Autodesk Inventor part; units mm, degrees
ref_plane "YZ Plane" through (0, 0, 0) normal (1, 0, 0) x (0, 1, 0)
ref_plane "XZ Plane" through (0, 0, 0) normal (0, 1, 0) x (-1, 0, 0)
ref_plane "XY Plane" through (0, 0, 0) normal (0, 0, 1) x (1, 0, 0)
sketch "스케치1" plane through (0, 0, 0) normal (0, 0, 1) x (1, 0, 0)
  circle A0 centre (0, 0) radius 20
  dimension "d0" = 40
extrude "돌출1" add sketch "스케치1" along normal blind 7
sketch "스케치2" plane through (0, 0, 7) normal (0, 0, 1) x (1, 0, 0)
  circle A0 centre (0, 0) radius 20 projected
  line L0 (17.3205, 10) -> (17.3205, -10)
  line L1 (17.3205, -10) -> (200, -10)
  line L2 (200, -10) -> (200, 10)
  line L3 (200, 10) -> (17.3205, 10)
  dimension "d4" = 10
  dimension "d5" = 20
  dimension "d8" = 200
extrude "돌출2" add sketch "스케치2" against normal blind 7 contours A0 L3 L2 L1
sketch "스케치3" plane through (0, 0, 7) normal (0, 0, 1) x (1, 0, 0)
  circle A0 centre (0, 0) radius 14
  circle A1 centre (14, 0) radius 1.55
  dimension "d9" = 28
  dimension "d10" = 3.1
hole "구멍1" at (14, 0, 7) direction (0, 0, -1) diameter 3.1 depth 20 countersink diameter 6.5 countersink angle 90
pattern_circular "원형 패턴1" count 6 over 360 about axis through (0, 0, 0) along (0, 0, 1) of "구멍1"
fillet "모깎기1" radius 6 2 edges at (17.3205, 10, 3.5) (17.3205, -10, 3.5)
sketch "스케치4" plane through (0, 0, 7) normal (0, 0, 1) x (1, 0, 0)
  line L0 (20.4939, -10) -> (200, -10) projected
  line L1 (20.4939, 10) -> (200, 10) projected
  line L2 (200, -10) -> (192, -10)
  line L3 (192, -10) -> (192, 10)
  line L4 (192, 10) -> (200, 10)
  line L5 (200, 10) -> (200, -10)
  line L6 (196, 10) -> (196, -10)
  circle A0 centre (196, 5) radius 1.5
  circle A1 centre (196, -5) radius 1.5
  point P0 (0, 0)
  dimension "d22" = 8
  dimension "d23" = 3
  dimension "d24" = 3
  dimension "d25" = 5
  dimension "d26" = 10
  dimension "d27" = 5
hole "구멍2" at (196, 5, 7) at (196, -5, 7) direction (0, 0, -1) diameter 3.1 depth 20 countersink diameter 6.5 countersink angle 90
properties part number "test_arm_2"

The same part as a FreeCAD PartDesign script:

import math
import FreeCAD as App
import Part
import Sketcher


def edges_at(feature, points):
    """Names of the edges that pass closest to the given points."""
    edges = feature.Shape.Edges
    near = lambda p: min(range(len(edges)), key=lambda i: edges[i].distToShape(Part.Vertex(*p))[0])
    return sorted({f"Edge{near(p) + 1}" for p in points})

doc = App.newDocument("Part")
body = doc.addObject("PartDesign::Body", "Body")

# Sketch on XY plane
sketch1 = body.newObject("Sketcher::SketchObject", "Sketch")
sketch1.AttachmentSupport = (doc.getObject("XY_Plane"), [""])
sketch1.MapMode = "FlatFace"
sketch1.addGeometry(Part.Circle(App.Vector(0, 0, 0), App.Vector(0, 0, 1), 20), False)
sketch1.addConstraint([
    Sketcher.Constraint("Coincident", 0, 3, -1, 1),
    Sketcher.Constraint("Diameter", 0, 40.0),
])
pad1 = body.newObject("PartDesign::Pad", "Pad")
pad1.Profile = sketch1
pad1.Length = 7

# Sketch on XY plane
sketch2 = body.newObject("Sketcher::SketchObject", "Sketch001")
sketch2.AttachmentSupport = (doc.getObject("XY_Plane"), [""])
sketch2.MapMode = "FlatFace"
sketch2.AttachmentOffset = App.Placement(App.Vector(0, 0, 7), App.Rotation())
sketch2.addGeometry([
    Part.ArcOfCircle(Part.Circle(App.Vector(0, 0, 0), App.Vector(0, 0, 1), 20), math.radians(-30), math.radians(30)),
    Part.LineSegment(App.Vector(17, -10, 0), App.Vector(200, -10, 0)),
    Part.LineSegment(App.Vector(200, -10, 0), App.Vector(200, 10, 0)),
    Part.LineSegment(App.Vector(200, 10, 0), App.Vector(17, 10, 0)),
], False)
sketch2.addConstraint([
    Sketcher.Constraint("Coincident", 0, 1, 1, 1),
    Sketcher.Constraint("Coincident", 1, 2, 2, 1),
    Sketcher.Constraint("Coincident", 2, 2, 3, 1),
    Sketcher.Constraint("Coincident", 3, 2, 0, 2),
    Sketcher.Constraint("Horizontal", 1),
    Sketcher.Constraint("Vertical", 2),
    Sketcher.Constraint("Horizontal", 3),
    Sketcher.Constraint("Coincident", 0, 3, -1, 1),
    Sketcher.Constraint("Vertical", 0, 1, 3, 2),
    Sketcher.Constraint("Radius", 0, 20.0),
    Sketcher.Constraint("DistanceY", 2, 1, 2, 2, 20.0),
    Sketcher.Constraint("DistanceX", -1, 1, 1, 2, 200.0),
])
pad2 = body.newObject("PartDesign::Pad", "Pad001")
pad2.Profile = sketch2
pad2.Length = 7
pad2.Reversed = True

# Sketch on XY plane
sketch3 = body.newObject("Sketcher::SketchObject", "Sketch002")
sketch3.AttachmentSupport = (doc.getObject("XY_Plane"), [""])
sketch3.MapMode = "FlatFace"
sketch3.AttachmentOffset = App.Placement(App.Vector(0, 0, 7), App.Rotation())
sketch3.addGeometry(Part.Circle(App.Vector(14, 0, 0), App.Vector(0, 0, 1), 1.6), False)
sketch3.addConstraint([
    Sketcher.Constraint("PointOnObject", 0, 3, -1),
    Sketcher.Constraint("Diameter", 0, 3.1),
    Sketcher.Constraint("DistanceX", -1, 1, 0, 3, 14.0),
])
doc.recompute()
hole = body.newObject("PartDesign::Hole", "Hole")
hole.Profile = sketch3
hole.ThreadType = "None"
hole.Diameter = 3.1
hole.DepthType = "Dimension"
hole.Depth = 20
hole.DrillPoint = "Flat"
hole.HoleCutType = "Countersink"
hole.HoleCutDiameter = 6.5
hole.HoleCutCountersinkAngle = 90
doc.recompute()

polarpattern = body.newObject("PartDesign::PolarPattern", "PolarPattern")
polarpattern.Originals = [hole]
polarpattern.Axis = (doc.getObject("Z_Axis"), [""])
polarpattern.Angle = 360
polarpattern.Occurrences = 6
body.Tip = polarpattern
doc.recompute()

fillet = body.newObject("PartDesign::Fillet", "Fillet")
fillet.Base = (polarpattern, edges_at(polarpattern, [(17.32, 10, 3.5), (17.32, -10, 3.5)]))
fillet.Radius = 6

# Sketch on XY plane
sketch4 = body.newObject("Sketcher::SketchObject", "Sketch003")
sketch4.AttachmentSupport = (doc.getObject("XY_Plane"), [""])
sketch4.MapMode = "FlatFace"
sketch4.AttachmentOffset = App.Placement(App.Vector(0, 0, 7), App.Rotation())
sketch4.addGeometry([
    Part.Circle(App.Vector(196, 5, 0), App.Vector(0, 0, 1), 1.6),
    Part.Circle(App.Vector(196, -5, 0), App.Vector(0, 0, 1), 1.6),
], False)
sketch4.addConstraint([
    Sketcher.Constraint("Equal", 0, 1),
    Sketcher.Constraint("Symmetric", 0, 3, 1, 3, -1),
    Sketcher.Constraint("Diameter", 0, 3.1),
    Sketcher.Constraint("DistanceX", -1, 1, 0, 3, 196.0),
    Sketcher.Constraint("DistanceY", -1, 1, 0, 3, 5.0),
])
doc.recompute()
hole2 = body.newObject("PartDesign::Hole", "Hole001")
hole2.Profile = sketch4
hole2.ThreadType = "None"
hole2.Diameter = 3.1
hole2.DepthType = "Dimension"
hole2.Depth = 20
hole2.DrillPoint = "Flat"
hole2.HoleCutType = "Countersink"
hole2.HoleCutDiameter = 6.5
hole2.HoleCutCountersinkAngle = 90

doc.recompute()
